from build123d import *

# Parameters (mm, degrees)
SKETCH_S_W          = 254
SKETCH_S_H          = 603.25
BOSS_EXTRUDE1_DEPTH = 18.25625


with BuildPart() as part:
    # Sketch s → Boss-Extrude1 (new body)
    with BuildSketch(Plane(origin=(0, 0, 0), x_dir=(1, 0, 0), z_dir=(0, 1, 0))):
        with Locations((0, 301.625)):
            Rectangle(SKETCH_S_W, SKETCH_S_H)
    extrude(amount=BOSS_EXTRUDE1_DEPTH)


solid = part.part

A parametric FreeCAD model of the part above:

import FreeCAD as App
import Part
import Sketcher
from FreeCAD import Vector
Q = App.Units.Quantity

doc = App.newDocument("Part")
body = doc.addObject("PartDesign::Body", "Body")

sketch1 = body.newObject("Sketcher::SketchObject", "Sketch")
sketch1.AttachmentSupport = (doc.getObject("XZ_Plane"), [""])
sketch1.MapMode = "FlatFace"
sketch1.addGeometry(Part.LineSegment(Vector(-127, -603, 0), Vector(-127, 0, 0)), False)
sketch1.addGeometry(Part.LineSegment(Vector(-127, 0, 0), Vector(127, 0, 0)), False)
sketch1.addGeometry(Part.LineSegment(Vector(127, 0, 0), Vector(127, -603, 0)), False)
sketch1.addGeometry(Part.LineSegment(Vector(127, -603, 0), Vector(-127, -603, 0)), False)
sketch1.addConstraint(Sketcher.Constraint("Coincident", 0, 2, 1, 1))
sketch1.addConstraint(Sketcher.Constraint("Coincident", 1, 2, 2, 1))
sketch1.addConstraint(Sketcher.Constraint("Coincident", 2, 2, 3, 1))
sketch1.addConstraint(Sketcher.Constraint("Coincident", 3, 2, 0, 1))
sketch1.addConstraint(Sketcher.Constraint("Vertical", 0))
sketch1.addConstraint(Sketcher.Constraint("Horizontal", 1))
sketch1.addConstraint(Sketcher.Constraint("Vertical", 2))
sketch1.addConstraint(Sketcher.Constraint("Horizontal", 3))
sketch1.addConstraint(Sketcher.Constraint("Symmetric", 0, 2, 1, 2, -1, 1))
sketch1.addConstraint(Sketcher.Constraint("DistanceX", 1, 1, 1, 2, Q("10 in")))
sketch1.addConstraint(Sketcher.Constraint("DistanceY", 0, 1, 0, 2, Q("23.75 in")))
pad1 = body.newObject("PartDesign::Pad", "Pad")
pad1.Profile = sketch1
pad1.Length = Q("0.71875 in")
pad1.Reversed = True

doc.recompute()
